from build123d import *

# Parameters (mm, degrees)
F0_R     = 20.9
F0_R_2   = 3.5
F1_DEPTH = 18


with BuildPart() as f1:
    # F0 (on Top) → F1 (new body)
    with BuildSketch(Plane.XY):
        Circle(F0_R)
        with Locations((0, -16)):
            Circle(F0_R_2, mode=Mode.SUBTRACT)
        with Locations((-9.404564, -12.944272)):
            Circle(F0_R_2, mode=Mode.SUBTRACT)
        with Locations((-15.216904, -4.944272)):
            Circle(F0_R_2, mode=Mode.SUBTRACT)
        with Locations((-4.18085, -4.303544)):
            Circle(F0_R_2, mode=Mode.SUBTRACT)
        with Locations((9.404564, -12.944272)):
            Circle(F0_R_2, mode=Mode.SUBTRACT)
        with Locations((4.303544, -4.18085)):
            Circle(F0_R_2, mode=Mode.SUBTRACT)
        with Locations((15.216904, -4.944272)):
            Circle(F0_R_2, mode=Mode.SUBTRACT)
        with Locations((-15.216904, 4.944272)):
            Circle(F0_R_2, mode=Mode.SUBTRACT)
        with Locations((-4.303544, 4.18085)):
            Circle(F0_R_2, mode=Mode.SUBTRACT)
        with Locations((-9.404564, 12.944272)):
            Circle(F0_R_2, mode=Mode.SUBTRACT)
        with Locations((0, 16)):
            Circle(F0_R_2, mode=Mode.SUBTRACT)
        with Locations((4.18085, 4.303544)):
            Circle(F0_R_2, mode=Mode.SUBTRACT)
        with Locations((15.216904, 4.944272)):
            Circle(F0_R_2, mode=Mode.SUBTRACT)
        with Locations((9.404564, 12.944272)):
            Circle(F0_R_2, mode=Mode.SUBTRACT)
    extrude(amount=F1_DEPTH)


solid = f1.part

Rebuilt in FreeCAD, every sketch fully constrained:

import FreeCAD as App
import Part
import Sketcher
from FreeCAD import Vector
Q = App.Units.Quantity

doc = App.newDocument("Part")
params = doc.addObject("Spreadsheet::Sheet", "Params")
for row, (alias, value) in enumerate([
    ("sketch1_diameter", "7 mm"),
    ("sketch1_diameter2", "41.8 mm"),
    ("pad1_length", "18 mm"),
], start=1):
    params.set(f"A{row}", alias)
    params.set(f"B{row}", "=" + value)
    params.setAlias(f"B{row}", alias)

body = doc.addObject("PartDesign::Body", "Body")

# Sketch on XY plane
sketch1 = body.newObject("Sketcher::SketchObject", "Sketch")
sketch1.AttachmentSupport = (doc.getObject("XY_Plane"), [""])
sketch1.MapMode = "FlatFace"
sketch1.addGeometry([
    Part.Circle(Vector(0, 0, 0), Vector(0, 0, 1), 20.9),  # 0
    Part.Circle(Vector(-9.4, -12.9, 0), Vector(0, 0, 1), 3.5),  # 1
    Part.Circle(Vector(0, -16, 0), Vector(0, 0, 1), 3.5),  # 2
    Part.Circle(Vector(-15.2, -4.9, 0), Vector(0, 0, 1), 3.5),  # 3
    Part.Circle(Vector(-4.2, -4.3, 0), Vector(0, 0, 1), 3.5),  # 4
    Part.Circle(Vector(9.4, -12.9, 0), Vector(0, 0, 1), 3.5),  # 5
    Part.Circle(Vector(4.3, -4.2, 0), Vector(0, 0, 1), 3.5),  # 6
    Part.Circle(Vector(15.2, -4.9, 0), Vector(0, 0, 1), 3.5),  # 7
    Part.Circle(Vector(-15.2, 4.9, 0), Vector(0, 0, 1), 3.5),  # 8
    Part.Circle(Vector(-4.3, 4.2, 0), Vector(0, 0, 1), 3.5),  # 9
    Part.Circle(Vector(-9.4, 12.9, 0), Vector(0, 0, 1), 3.5),  # 10
    Part.Circle(Vector(0, 16, 0), Vector(0, 0, 1), 3.5),  # 11
    Part.Circle(Vector(4.2, 4.3, 0), Vector(0, 0, 1), 3.5),  # 12
    Part.Circle(Vector(15.2, 4.9, 0), Vector(0, 0, 1), 3.5),  # 13
    Part.Circle(Vector(9.4, 12.9, 0), Vector(0, 0, 1), 3.5),  # 14
], False)
sketch1.addConstraint([
    Sketcher.Constraint("Coincident", 0, 3, -1, 1),
    Sketcher.Constraint("Equal", 1, 2),
    Sketcher.Constraint("Equal", 2, 3),
    Sketcher.Constraint("Equal", 3, 4),
    Sketcher.Constraint("Equal", 4, 5),
    Sketcher.Constraint("Equal", 5, 6),
    Sketcher.Constraint("Equal", 6, 7),
    Sketcher.Constraint("Equal", 7, 8),
    Sketcher.Constraint("Equal", 8, 9),
    Sketcher.Constraint("Equal", 9, 10),
    Sketcher.Constraint("Equal", 10, 11),
    Sketcher.Constraint("Equal", 11, 12),
    Sketcher.Constraint("Equal", 12, 13),
    Sketcher.Constraint("Equal", 13, 14),
    Sketcher.Constraint("Symmetric", 7, 3, 8, 3, -1, 1),
    Sketcher.Constraint("Symmetric", 6, 3, 9, 3, -1, 1),
    Sketcher.Constraint("Symmetric", 5, 3, 10, 3, -1, 1),
    Sketcher.Constraint("Symmetric", 2, 3, 11, 3, -1, 1),
    Sketcher.Constraint("Symmetric", 4, 3, 12, 3, -1, 1),
    Sketcher.Constraint("Symmetric", 3, 3, 13, 3, -1, 1),
    Sketcher.Constraint("Symmetric", 1, 3, 14, 3, -1, 1),
    Sketcher.Constraint("Symmetric", 1, 3, 5, 3, -2),
    Sketcher.Constraint("Symmetric", 3, 3, 7, 3, -2),
    Sketcher.Constraint("PointOnObject", 2, 3, -2),
    Sketcher.Constraint("Diameter", 1, Q("7 mm")),
    Sketcher.Constraint("Diameter", 0, Q("41.8 mm")),
    Sketcher.Constraint("DistanceY", 2, 3, -1, 1, Q("16 mm")),
    Sketcher.Constraint("DistanceY", 1, 3, 3, 3, Q("8 mm")),
    Sketcher.Constraint("DistanceY", 6, 3, 9, 3, Q("8.3617 mm")),
    Sketcher.Constraint("DistanceX", 4, 3, 12, 3, Q("8.3617 mm")),
    Sketcher.Constraint("DistanceY", 3, 3, -1, 1, Q("4.944272 mm")),
    Sketcher.Constraint("DistanceX", 3, 3, 1, 3, Q("5.81234 mm")),
    Sketcher.Constraint("DistanceY", 3, 3, 4, 3, Q("0.640728 mm")),
    Sketcher.Constraint("DistanceX", 1, 3, 5, 3, Q("18.809128 mm")),
    Sketcher.Constraint("DistanceX", 6, 3, 5, 3, Q("5.10102 mm")),
])
sketch1.setExpression("Constraints[24]", "Params.sketch1_diameter")
sketch1.setExpression("Constraints[25]", "Params.sketch1_diameter2")
pad1 = body.newObject("PartDesign::Pad", "Pad")
pad1.Profile = sketch1
pad1.setExpression("Length", "Params.pad1_length")

doc.recompute()
